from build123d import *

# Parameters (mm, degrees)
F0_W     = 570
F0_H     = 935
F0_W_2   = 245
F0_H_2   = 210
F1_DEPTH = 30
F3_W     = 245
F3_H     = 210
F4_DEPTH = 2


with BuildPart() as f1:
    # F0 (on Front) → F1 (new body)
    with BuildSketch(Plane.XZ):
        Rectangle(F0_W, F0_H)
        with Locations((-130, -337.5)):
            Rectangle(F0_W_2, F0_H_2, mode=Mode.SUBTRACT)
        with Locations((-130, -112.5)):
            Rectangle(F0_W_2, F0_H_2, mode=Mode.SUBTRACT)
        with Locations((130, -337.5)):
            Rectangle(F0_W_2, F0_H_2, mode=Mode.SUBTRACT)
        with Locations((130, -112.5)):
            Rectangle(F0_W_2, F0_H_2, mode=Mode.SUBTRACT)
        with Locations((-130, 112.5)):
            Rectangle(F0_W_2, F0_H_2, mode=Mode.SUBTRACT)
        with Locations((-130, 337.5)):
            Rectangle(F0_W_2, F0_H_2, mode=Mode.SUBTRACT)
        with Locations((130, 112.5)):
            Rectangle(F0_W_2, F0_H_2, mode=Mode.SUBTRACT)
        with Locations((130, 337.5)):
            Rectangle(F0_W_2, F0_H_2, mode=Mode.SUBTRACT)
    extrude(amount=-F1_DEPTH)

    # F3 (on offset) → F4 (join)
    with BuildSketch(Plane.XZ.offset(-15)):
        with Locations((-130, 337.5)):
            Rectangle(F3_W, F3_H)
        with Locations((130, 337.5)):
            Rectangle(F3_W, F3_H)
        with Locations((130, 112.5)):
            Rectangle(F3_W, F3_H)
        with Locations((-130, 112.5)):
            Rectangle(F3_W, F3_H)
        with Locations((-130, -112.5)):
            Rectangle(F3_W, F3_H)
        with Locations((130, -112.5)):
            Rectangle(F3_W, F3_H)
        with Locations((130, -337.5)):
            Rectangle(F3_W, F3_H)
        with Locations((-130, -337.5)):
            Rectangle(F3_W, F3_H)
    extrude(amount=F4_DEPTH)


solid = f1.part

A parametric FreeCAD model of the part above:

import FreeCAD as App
import Part
import Sketcher

V = App.Vector
Q = App.Units.Quantity


def add_polygon(sketch, points):
    """Adds a closed chain of lines whose ends are joined by coincident constraints."""
    first, n = sketch.GeometryCount, len(points)
    for a, b in zip(points, points[1:] + points[:1]):
        sketch.addGeometry(Part.LineSegment(App.Vector(*a, 0), App.Vector(*b, 0)), False)
    for i in range(n):
        sketch.addConstraint(Sketcher.Constraint("Coincident", first + i, 2, first + (i + 1) % n, 1))

doc = App.newDocument("Part")
body = doc.addObject("PartDesign::Body", "Body")

# Sketch on XZ plane
sketch1 = body.newObject("Sketcher::SketchObject", "Sketch")
sketch1.AttachmentSupport = (doc.getObject("XZ_Plane"), [""])
sketch1.MapMode = "FlatFace"
add_polygon(sketch1, [(-285, 468), (-285, -468), (285, -468), (285, 468)])  # lines 0-3
add_polygon(sketch1, [(-8, -442), (-252, -442), (-252, -232), (-8, -232)])  # lines 4-7
add_polygon(sketch1, [(-8, -218), (-252, -218), (-252, -8), (-8, -8)])  # lines 8-11
add_polygon(sketch1, [(252, -442), (8, -442), (8, -232), (252, -232)])  # lines 12-15
add_polygon(sketch1, [(252, -218), (8, -218), (8, -8), (252, -8)])  # lines 16-19
add_polygon(sketch1, [(-8, 8), (-252, 8), (-252, 218), (-8, 218)])  # lines 20-23
add_polygon(sketch1, [(-8, 232), (-252, 232), (-252, 442), (-8, 442)])  # lines 24-27
add_polygon(sketch1, [(252, 8), (8, 8), (8, 218), (252, 218)])  # lines 28-31
add_polygon(sketch1, [(252, 232), (8, 232), (8, 442), (252, 442)])  # lines 32-35
sketch1.addConstraint(Sketcher.Constraint("Vertical", 0))
sketch1.addConstraint(Sketcher.Constraint("Horizontal", 1))
sketch1.addConstraint(Sketcher.Constraint("Vertical", 2))
sketch1.addConstraint(Sketcher.Constraint("Horizontal", 3))
sketch1.addConstraint(Sketcher.Constraint("Horizontal", 4))
sketch1.addConstraint(Sketcher.Constraint("Vertical", 5))
sketch1.addConstraint(Sketcher.Constraint("Horizontal", 6))
sketch1.addConstraint(Sketcher.Constraint("Vertical", 7))
sketch1.addConstraint(Sketcher.Constraint("Horizontal", 8))
sketch1.addConstraint(Sketcher.Constraint("Vertical", 9))
sketch1.addConstraint(Sketcher.Constraint("Horizontal", 10))
sketch1.addConstraint(Sketcher.Constraint("Vertical", 11))
sketch1.addConstraint(Sketcher.Constraint("Horizontal", 12))
sketch1.addConstraint(Sketcher.Constraint("Vertical", 13))
sketch1.addConstraint(Sketcher.Constraint("Horizontal", 14))
sketch1.addConstraint(Sketcher.Constraint("Vertical", 15))
sketch1.addConstraint(Sketcher.Constraint("Horizontal", 16))
sketch1.addConstraint(Sketcher.Constraint("Vertical", 17))
sketch1.addConstraint(Sketcher.Constraint("Horizontal", 18))
sketch1.addConstraint(Sketcher.Constraint("Vertical", 19))
sketch1.addConstraint(Sketcher.Constraint("Horizontal", 20))
sketch1.addConstraint(Sketcher.Constraint("Vertical", 21))
sketch1.addConstraint(Sketcher.Constraint("Horizontal", 22))
sketch1.addConstraint(Sketcher.Constraint("Vertical", 23))
sketch1.addConstraint(Sketcher.Constraint("Horizontal", 24))
sketch1.addConstraint(Sketcher.Constraint("Vertical", 25))
sketch1.addConstraint(Sketcher.Constraint("Horizontal", 26))
sketch1.addConstraint(Sketcher.Constraint("Vertical", 27))
sketch1.addConstraint(Sketcher.Constraint("Horizontal", 28))
sketch1.addConstraint(Sketcher.Constraint("Vertical", 29))
sketch1.addConstraint(Sketcher.Constraint("Horizontal", 30))
sketch1.addConstraint(Sketcher.Constraint("Vertical", 31))
sketch1.addConstraint(Sketcher.Constraint("Horizontal", 32))
sketch1.addConstraint(Sketcher.Constraint("Vertical", 33))
sketch1.addConstraint(Sketcher.Constraint("Horizontal", 34))
sketch1.addConstraint(Sketcher.Constraint("Vertical", 35))
sketch1.addConstraint(Sketcher.Constraint("Symmetric", 0, 2, 2, 2, -1, 1))
sketch1.addConstraint(Sketcher.Constraint("Symmetric", 18, 2, 20, 2, -1, 1))
sketch1.addConstraint(Sketcher.Constraint("Symmetric", 16, 2, 22, 2, -1, 1))
sketch1.addConstraint(Sketcher.Constraint("Symmetric", 14, 2, 24, 2, -1, 1))
sketch1.addConstraint(Sketcher.Constraint("Symmetric", 12, 2, 26, 2, -1, 1))
sketch1.addConstraint(Sketcher.Constraint("Symmetric", 10, 2, 28, 2, -1, 1))
sketch1.addConstraint(Sketcher.Constraint("Symmetric", 8, 2, 30, 2, -1, 1))
sketch1.addConstraint(Sketcher.Constraint("Symmetric", 6, 2, 32, 2, -1, 1))
sketch1.addConstraint(Sketcher.Constraint("Symmetric", 4, 2, 34, 2, -1, 1))
sketch1.addConstraint(Sketcher.Constraint("Symmetric", 7, 2, 12, 2, -2))
sketch1.addConstraint(Sketcher.Constraint("Symmetric", 5, 2, 14, 2, -2))
sketch1.addConstraint(Sketcher.Constraint("Symmetric", 11, 2, 16, 2, -2))
sketch1.addConstraint(Sketcher.Constraint("Symmetric", 9, 2, 18, 2, -2))
sketch1.addConstraint(Sketcher.Constraint("Vertical", 5, 2, 8, 2))
sketch1.addConstraint(Sketcher.Constraint("Vertical", 7, 2, 10, 2))
sketch1.addConstraint(Sketcher.Constraint("Equal", 7, 9))
sketch1.addConstraint(Sketcher.Constraint("DistanceX", 1, 1, 1, 2, Q("570 mm")))
sketch1.addConstraint(Sketcher.Constraint("DistanceX", 4, 2, 4, 1, Q("245 mm")))
sketch1.addConstraint(Sketcher.Constraint("DistanceY", 0, 2, 0, 1, Q("935 mm")))
sketch1.addConstraint(Sketcher.Constraint("DistanceY", 5, 1, 5, 2, Q("210 mm")))
sketch1.addConstraint(Sketcher.Constraint("DistanceY", 0, 2, 4, 2, Q("25 mm")))
sketch1.addConstraint(Sketcher.Constraint("DistanceY", 5, 2, 8, 2, Q("15 mm")))
sketch1.addConstraint(Sketcher.Constraint("DistanceX", 7, 2, 12, 2, Q("15 mm")))
pad1 = body.newObject("PartDesign::Pad", "Pad")
pad1.Profile = sketch1
pad1.Length = 30
pad1.Reversed = True

# Sketch on XZ plane
sketch2 = body.newObject("Sketcher::SketchObject", "Sketch001")
sketch2.AttachmentSupport = (doc.getObject("XZ_Plane"), [""])
sketch2.MapMode = "FlatFace"
sketch2.AttachmentOffset = App.Placement(V(0, 0, -15), App.Rotation())
add_polygon(sketch2, [(-252, 442), (-252, 232), (-8, 232), (-8, 442)])  # lines 0-3
add_polygon(sketch2, [(8, 442), (8, 232), (252, 232), (252, 442)])  # lines 4-7
add_polygon(sketch2, [(8, 218), (8, 8), (252, 8), (252, 218)])  # lines 8-11
add_polygon(sketch2, [(-252, 218), (-252, 8), (-8, 8), (-8, 218)])  # lines 12-15
add_polygon(sketch2, [(-252, -8), (-252, -218), (-8, -218), (-8, -8)])  # lines 16-19
add_polygon(sketch2, [(8, -8), (8, -218), (252, -218), (252, -8)])  # lines 20-23
add_polygon(sketch2, [(8, -232), (8, -442), (252, -442), (252, -232)])  # lines 24-27
add_polygon(sketch2, [(-252, -232), (-252, -442), (-8, -442), (-8, -232)])  # lines 28-31
sketch2.addConstraint(Sketcher.Constraint("Vertical", 0))
sketch2.addConstraint(Sketcher.Constraint("Horizontal", 1))
sketch2.addConstraint(Sketcher.Constraint("Vertical", 2))
sketch2.addConstraint(Sketcher.Constraint("Horizontal", 3))
sketch2.addConstraint(Sketcher.Constraint("Vertical", 4))
sketch2.addConstraint(Sketcher.Constraint("Horizontal", 5))
sketch2.addConstraint(Sketcher.Constraint("Vertical", 6))
sketch2.addConstraint(Sketcher.Constraint("Horizontal", 7))
sketch2.addConstraint(Sketcher.Constraint("Vertical", 8))
sketch2.addConstraint(Sketcher.Constraint("Horizontal", 9))
sketch2.addConstraint(Sketcher.Constraint("Vertical", 10))
sketch2.addConstraint(Sketcher.Constraint("Horizontal", 11))
sketch2.addConstraint(Sketcher.Constraint("Vertical", 12))
sketch2.addConstraint(Sketcher.Constraint("Horizontal", 13))
sketch2.addConstraint(Sketcher.Constraint("Vertical", 14))
sketch2.addConstraint(Sketcher.Constraint("Horizontal", 15))
sketch2.addConstraint(Sketcher.Constraint("Vertical", 16))
sketch2.addConstraint(Sketcher.Constraint("Horizontal", 17))
sketch2.addConstraint(Sketcher.Constraint("Vertical", 18))
sketch2.addConstraint(Sketcher.Constraint("Horizontal", 19))
sketch2.addConstraint(Sketcher.Constraint("Vertical", 20))
sketch2.addConstraint(Sketcher.Constraint("Horizontal", 21))
sketch2.addConstraint(Sketcher.Constraint("Vertical", 22))
sketch2.addConstraint(Sketcher.Constraint("Horizontal", 23))
sketch2.addConstraint(Sketcher.Constraint("Vertical", 24))
sketch2.addConstraint(Sketcher.Constraint("Horizontal", 25))
sketch2.addConstraint(Sketcher.Constraint("Vertical", 26))
sketch2.addConstraint(Sketcher.Constraint("Horizontal", 27))
sketch2.addConstraint(Sketcher.Constraint("Vertical", 28))
sketch2.addConstraint(Sketcher.Constraint("Horizontal", 29))
sketch2.addConstraint(Sketcher.Constraint("Vertical", 30))
sketch2.addConstraint(Sketcher.Constraint("Horizontal", 31))
sketch2.addConstraint(Sketcher.Constraint("Symmetric", 10, 2, 16, 2, -1, 1))
sketch2.addConstraint(Sketcher.Constraint("Symmetric", 8, 2, 18, 2, -1, 1))
sketch2.addConstraint(Sketcher.Constraint("Symmetric", 14, 2, 20, 2, -1, 1))
sketch2.addConstraint(Sketcher.Constraint("Symmetric", 12, 2, 22, 2, -1, 1))
sketch2.addConstraint(Sketcher.Constraint("Symmetric", 2, 2, 24, 2, -1, 1))
sketch2.addConstraint(Sketcher.Constraint("Symmetric", 0, 2, 26, 2, -1, 1))
sketch2.addConstraint(Sketcher.Constraint("Symmetric", 6, 2, 28, 2, -1, 1))
sketch2.addConstraint(Sketcher.Constraint("Symmetric", 4, 2, 30, 2, -1, 1))
sketch2.addConstraint(Sketcher.Constraint("Symmetric", 1, 2, 4, 2, -2))
sketch2.addConstraint(Sketcher.Constraint("Symmetric", 3, 2, 6, 2, -2))
sketch2.addConstraint(Sketcher.Constraint("Symmetric", 9, 2, 12, 2, -2))
sketch2.addConstraint(Sketcher.Constraint("Symmetric", 11, 2, 14, 2, -2))
sketch2.addConstraint(Sketcher.Constraint("Vertical", 7, 2, 8, 2))
sketch2.addConstraint(Sketcher.Constraint("Vertical", 6, 2, 9, 2))
sketch2.addConstraint(Sketcher.Constraint("Equal", 6, 8))
sketch2.addConstraint(Sketcher.Constraint("DistanceX", 1, 1, 1, 2, Q("245 mm")))
sketch2.addConstraint(Sketcher.Constraint("DistanceY", 0, 2, 0, 1, Q("210 mm")))
sketch2.addConstraint(Sketcher.Constraint("DistanceX", 1, 2, 4, 2, Q("15 mm")))
sketch2.addConstraint(Sketcher.Constraint("DistanceY", 8, 2, 4, 2, Q("225 mm")))
sketch2.addConstraint(Sketcher.Constraint("DistanceY", 16, 2, 12, 2, Q("225 mm")))
pad2 = body.newObject("PartDesign::Pad", "Pad001")
pad2.Profile = sketch2
pad2.Length = 2

doc.recompute()
